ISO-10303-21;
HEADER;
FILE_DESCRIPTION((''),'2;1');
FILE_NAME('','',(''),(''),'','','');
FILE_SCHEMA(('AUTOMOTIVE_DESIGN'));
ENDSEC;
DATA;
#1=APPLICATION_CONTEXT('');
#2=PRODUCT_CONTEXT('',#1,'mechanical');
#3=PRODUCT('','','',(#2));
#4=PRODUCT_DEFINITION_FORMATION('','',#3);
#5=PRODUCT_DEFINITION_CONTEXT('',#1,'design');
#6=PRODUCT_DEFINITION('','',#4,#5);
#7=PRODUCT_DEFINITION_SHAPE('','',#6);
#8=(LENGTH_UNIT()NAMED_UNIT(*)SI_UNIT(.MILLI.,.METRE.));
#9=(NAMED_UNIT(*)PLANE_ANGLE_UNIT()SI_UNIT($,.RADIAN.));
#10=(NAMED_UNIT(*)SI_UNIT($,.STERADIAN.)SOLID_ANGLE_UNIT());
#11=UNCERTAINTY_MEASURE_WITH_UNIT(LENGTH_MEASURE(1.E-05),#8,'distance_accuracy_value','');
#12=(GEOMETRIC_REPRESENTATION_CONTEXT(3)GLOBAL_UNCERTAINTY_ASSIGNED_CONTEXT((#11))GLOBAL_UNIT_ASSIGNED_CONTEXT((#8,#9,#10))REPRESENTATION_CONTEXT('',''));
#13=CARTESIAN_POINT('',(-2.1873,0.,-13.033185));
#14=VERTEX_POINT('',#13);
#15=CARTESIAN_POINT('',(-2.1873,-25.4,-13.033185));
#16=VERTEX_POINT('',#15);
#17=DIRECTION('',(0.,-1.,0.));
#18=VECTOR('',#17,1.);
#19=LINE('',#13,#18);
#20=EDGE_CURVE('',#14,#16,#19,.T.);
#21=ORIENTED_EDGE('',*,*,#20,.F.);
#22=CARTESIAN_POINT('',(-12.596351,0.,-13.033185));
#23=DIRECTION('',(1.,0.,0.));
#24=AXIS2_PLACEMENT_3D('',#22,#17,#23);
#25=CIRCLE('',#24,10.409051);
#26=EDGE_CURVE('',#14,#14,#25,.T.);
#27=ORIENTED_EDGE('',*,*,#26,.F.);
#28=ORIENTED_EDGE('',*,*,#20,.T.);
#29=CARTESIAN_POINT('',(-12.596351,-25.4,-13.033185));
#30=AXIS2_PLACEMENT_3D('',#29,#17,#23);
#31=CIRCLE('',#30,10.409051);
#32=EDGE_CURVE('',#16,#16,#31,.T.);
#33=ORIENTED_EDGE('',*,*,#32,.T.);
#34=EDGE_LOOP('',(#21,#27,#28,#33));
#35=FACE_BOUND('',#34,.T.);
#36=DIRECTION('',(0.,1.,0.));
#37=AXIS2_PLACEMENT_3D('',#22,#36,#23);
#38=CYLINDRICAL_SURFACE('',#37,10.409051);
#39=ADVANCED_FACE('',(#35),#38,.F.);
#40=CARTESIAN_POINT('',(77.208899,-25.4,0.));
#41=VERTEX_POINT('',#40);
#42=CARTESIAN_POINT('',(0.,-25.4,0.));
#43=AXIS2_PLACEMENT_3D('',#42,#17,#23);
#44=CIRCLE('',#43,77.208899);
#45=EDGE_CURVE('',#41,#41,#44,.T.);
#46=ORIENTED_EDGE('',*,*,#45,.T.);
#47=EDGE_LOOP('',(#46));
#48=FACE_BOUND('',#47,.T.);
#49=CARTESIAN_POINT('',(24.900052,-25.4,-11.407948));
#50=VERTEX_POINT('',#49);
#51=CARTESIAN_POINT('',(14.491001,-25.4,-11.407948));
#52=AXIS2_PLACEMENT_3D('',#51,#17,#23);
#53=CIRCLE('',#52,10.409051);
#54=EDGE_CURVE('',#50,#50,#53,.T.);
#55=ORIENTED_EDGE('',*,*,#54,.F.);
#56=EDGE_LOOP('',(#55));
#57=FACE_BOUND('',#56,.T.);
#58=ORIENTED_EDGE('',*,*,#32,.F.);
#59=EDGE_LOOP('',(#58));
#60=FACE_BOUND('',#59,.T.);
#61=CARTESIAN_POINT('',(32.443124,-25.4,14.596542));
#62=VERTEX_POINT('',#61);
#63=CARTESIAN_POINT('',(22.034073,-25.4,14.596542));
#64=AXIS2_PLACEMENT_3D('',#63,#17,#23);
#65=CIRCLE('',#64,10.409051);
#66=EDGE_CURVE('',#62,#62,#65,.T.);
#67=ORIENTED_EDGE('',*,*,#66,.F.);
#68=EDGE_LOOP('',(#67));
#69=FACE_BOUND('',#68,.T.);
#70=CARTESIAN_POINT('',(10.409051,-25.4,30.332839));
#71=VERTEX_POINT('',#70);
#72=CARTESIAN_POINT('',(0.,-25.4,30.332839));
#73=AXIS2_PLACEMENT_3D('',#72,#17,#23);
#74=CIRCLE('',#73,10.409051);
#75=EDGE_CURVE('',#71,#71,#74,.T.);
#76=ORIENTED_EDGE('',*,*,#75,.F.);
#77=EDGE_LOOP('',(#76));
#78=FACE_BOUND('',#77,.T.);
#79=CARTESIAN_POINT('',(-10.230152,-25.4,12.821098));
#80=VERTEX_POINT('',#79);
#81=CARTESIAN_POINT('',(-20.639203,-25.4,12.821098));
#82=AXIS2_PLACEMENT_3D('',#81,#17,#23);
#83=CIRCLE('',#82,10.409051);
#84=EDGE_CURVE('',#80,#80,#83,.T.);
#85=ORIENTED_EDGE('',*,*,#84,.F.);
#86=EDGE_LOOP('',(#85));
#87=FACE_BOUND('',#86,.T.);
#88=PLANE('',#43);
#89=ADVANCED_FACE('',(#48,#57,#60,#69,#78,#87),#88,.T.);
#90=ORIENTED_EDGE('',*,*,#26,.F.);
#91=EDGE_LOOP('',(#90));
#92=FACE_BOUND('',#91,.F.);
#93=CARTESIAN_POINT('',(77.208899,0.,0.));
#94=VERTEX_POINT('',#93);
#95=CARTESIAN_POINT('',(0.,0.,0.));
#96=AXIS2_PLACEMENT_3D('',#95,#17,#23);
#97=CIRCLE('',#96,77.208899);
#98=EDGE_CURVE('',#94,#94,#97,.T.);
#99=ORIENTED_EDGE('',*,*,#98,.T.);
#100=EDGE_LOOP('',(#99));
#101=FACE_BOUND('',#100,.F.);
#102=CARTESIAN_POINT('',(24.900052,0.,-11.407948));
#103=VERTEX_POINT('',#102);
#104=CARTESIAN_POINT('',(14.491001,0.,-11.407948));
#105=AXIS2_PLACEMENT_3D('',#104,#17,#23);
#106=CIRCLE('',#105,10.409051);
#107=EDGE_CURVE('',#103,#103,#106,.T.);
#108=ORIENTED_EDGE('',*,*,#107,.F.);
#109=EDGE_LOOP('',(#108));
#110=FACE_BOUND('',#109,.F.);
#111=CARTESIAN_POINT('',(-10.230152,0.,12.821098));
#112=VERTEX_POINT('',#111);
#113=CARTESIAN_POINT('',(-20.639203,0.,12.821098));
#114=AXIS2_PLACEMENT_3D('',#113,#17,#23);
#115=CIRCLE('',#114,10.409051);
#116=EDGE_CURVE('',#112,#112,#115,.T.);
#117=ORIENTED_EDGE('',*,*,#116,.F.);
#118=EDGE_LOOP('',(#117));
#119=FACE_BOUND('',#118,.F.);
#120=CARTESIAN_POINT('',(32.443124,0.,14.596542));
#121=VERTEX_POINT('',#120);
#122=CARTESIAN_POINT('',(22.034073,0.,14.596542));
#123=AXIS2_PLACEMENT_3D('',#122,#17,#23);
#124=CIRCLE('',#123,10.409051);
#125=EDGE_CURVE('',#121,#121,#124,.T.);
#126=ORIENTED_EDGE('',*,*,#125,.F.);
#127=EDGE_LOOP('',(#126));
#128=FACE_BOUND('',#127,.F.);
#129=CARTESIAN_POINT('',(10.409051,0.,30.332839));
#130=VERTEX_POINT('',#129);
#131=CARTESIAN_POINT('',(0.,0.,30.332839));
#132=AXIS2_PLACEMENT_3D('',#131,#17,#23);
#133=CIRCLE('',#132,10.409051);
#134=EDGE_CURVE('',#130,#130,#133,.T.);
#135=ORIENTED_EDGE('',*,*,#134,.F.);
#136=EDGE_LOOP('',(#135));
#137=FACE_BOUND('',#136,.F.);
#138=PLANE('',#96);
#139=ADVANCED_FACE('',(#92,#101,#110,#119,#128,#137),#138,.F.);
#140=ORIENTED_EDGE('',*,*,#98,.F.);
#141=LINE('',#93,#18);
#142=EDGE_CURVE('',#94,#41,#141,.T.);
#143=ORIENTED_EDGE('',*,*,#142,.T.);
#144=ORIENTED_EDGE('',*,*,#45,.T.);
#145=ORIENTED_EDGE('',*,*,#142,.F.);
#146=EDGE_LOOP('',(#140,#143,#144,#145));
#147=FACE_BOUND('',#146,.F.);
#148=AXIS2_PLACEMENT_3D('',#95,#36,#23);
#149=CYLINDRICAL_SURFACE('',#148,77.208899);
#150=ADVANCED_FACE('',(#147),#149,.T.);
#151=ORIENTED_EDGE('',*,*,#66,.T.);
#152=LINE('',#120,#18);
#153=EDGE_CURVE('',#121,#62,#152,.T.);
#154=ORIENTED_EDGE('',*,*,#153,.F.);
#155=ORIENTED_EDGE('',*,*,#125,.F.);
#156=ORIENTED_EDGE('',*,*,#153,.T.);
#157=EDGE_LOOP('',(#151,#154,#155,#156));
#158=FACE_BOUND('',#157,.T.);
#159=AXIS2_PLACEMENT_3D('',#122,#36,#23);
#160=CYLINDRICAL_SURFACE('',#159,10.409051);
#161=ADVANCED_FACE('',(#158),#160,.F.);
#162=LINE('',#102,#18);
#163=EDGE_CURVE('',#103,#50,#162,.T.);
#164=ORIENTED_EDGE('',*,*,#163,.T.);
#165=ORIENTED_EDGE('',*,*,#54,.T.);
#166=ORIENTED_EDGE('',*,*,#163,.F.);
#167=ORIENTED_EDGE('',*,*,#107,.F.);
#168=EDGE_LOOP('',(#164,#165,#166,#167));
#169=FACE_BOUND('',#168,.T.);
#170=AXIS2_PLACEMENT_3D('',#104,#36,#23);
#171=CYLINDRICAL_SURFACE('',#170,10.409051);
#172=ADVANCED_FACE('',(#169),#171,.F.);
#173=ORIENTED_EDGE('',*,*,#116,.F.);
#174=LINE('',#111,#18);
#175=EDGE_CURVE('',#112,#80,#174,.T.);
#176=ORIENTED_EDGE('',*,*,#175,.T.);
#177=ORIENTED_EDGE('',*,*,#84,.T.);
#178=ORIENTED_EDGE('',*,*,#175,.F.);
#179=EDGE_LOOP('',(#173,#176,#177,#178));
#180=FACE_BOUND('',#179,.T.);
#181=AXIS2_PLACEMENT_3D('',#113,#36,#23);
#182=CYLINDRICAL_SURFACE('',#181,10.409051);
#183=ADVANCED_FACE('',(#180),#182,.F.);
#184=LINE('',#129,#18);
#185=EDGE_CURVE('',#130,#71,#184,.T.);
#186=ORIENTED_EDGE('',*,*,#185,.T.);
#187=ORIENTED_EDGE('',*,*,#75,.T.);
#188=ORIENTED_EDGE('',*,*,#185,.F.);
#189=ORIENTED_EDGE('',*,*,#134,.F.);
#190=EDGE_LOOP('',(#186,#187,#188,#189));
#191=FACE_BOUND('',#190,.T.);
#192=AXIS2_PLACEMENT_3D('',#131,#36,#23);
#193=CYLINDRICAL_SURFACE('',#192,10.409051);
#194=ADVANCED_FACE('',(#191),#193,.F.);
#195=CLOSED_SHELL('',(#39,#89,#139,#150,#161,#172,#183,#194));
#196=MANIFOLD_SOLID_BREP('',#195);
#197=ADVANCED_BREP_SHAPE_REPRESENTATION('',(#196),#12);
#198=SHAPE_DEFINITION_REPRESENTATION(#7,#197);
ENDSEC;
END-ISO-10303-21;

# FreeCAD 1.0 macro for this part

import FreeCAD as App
import Part
import Sketcher

V = App.Vector

doc = App.newDocument("Part")
params = doc.addObject("Spreadsheet::Sheet", "Params")
for row, (alias, value) in enumerate([
    ("pad1_length", "1 in"),
], start=1):
    params.set(f"A{row}", alias)
    params.set(f"B{row}", "=" + value)
    params.setAlias(f"B{row}", alias)

body = doc.addObject("PartDesign::Body", "Body")

# Sketch on XZ plane
sketch1 = body.newObject("Sketcher::SketchObject", "Sketch")
sketch1.AttachmentSupport = (doc.getObject("XZ_Plane"), [""])
sketch1.MapMode = "FlatFace"
sketch1.addGeometry(Part.Circle(V(0, 0, 0), V(0, 0, 1), 77), False)
sketch1.addGeometry(Part.Circle(V(-13, -13, 0), V(0, 0, 1), 10), False)
sketch1.addGeometry(Part.Circle(V(14, -11, 0), V(0, 0, 1), 10), False)
sketch1.addGeometry(Part.Circle(V(-21, 13, 0), V(0, 0, 1), 10), False)
sketch1.addGeometry(Part.Circle(V(0, 30, 0), V(0, 0, 1), 10), False)
sketch1.addGeometry(Part.Circle(V(22, 15, 0), V(0, 0, 1), 10), False)
sketch1.addConstraint(Sketcher.Constraint("Coincident", 0, 3, -1, 1))
sketch1.addConstraint(Sketcher.Constraint("Equal", 1, 2))
sketch1.addConstraint(Sketcher.Constraint("Equal", 2, 3))
sketch1.addConstraint(Sketcher.Constraint("Equal", 3, 4))
sketch1.addConstraint(Sketcher.Constraint("Equal", 4, 5))
sketch1.addConstraint(Sketcher.Constraint("PointOnObject", 4, 3, -2))
sketch1.addConstraint(Sketcher.Constraint("Diameter", 0, 154.417798))
sketch1.addConstraint(Sketcher.Constraint("Diameter", 1, 20.818102))
sketch1.addConstraint(Sketcher.Constraint("DistanceX", -1, 1, 2, 3, 14.491001))
sketch1.addConstraint(Sketcher.Constraint("DistanceX", 1, 3, -1, 1, 12.596351))
sketch1.addConstraint(Sketcher.Constraint("DistanceY", -1, 1, 4, 3, 30.332839))
sketch1.addConstraint(Sketcher.Constraint("DistanceX", 3, 3, 1, 3, 8.042852))
sketch1.addConstraint(Sketcher.Constraint("DistanceY", 3, 3, 4, 3, 17.511741))
sketch1.addConstraint(Sketcher.Constraint("DistanceX", 2, 3, 5, 3, 7.543072))
sketch1.addConstraint(Sketcher.Constraint("DistanceY", 2, 3, 5, 3, 26.00449))
sketch1.addConstraint(Sketcher.Constraint("DistanceY", 1, 3, -1, 1, 13.033185))
sketch1.addConstraint(Sketcher.Constraint("DistanceY", 2, 3, -1, 1, 11.407948))
pad1 = body.newObject("PartDesign::Pad", "Pad")
pad1.Profile = sketch1
pad1.setExpression("Length", "Params.pad1_length")

doc.recompute()
